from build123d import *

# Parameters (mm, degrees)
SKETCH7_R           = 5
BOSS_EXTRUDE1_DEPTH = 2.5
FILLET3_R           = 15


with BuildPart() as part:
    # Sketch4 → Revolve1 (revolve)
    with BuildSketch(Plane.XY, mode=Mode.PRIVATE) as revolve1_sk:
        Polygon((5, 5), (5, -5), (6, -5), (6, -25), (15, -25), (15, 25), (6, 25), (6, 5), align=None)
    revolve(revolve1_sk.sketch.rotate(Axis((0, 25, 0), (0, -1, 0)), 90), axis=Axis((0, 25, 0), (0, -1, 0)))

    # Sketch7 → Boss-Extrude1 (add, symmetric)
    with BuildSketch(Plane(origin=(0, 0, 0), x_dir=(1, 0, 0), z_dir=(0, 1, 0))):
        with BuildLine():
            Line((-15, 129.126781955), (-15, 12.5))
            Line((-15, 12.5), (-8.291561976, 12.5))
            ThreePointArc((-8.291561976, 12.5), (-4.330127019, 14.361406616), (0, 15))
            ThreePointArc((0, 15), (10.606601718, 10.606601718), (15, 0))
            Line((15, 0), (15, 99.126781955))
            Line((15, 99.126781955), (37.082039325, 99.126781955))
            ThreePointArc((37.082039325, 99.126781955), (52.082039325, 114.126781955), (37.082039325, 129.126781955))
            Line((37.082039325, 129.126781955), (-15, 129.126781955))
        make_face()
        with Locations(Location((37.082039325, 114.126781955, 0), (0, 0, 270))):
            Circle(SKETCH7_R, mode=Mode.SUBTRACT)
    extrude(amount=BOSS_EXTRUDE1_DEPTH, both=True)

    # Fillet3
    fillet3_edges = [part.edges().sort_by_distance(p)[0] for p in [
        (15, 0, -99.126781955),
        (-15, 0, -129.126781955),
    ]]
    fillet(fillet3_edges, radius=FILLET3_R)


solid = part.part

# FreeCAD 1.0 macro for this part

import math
import FreeCAD as App
import Part
import Sketcher


def edges_at(feature, points):
    """Names of the edges that pass closest to the given points."""
    edges = feature.Shape.Edges
    near = lambda p: min(range(len(edges)), key=lambda i: edges[i].distToShape(Part.Vertex(*p))[0])
    return sorted({f"Edge{near(p) + 1}" for p in points})


def add_polygon(sketch, points):
    """Adds a closed chain of lines whose ends are joined by coincident constraints."""
    first, n = sketch.GeometryCount, len(points)
    for a, b in zip(points, points[1:] + points[:1]):
        sketch.addGeometry(Part.LineSegment(App.Vector(*a, 0), App.Vector(*b, 0)), False)
    for i in range(n):
        sketch.addConstraint(Sketcher.Constraint("Coincident", first + i, 2, first + (i + 1) % n, 1))

doc = App.newDocument("Part")
body = doc.addObject("PartDesign::Body", "Body")

# Sketch on XY plane
sketch1 = body.newObject("Sketcher::SketchObject", "Sketch")
sketch1.AttachmentSupport = (doc.getObject("XY_Plane"), [""])
sketch1.MapMode = "FlatFace"
add_polygon(sketch1, [(5, 5), (5, -5), (6, -5), (6, -25), (15, -25), (15, 25), (6, 25), (6, 5)])  # lines 0-7
sketch1.addConstraint(Sketcher.Constraint("Vertical", 0))
sketch1.addConstraint(Sketcher.Constraint("Horizontal", 1))
sketch1.addConstraint(Sketcher.Constraint("Vertical", 2))
sketch1.addConstraint(Sketcher.Constraint("Horizontal", 3))
sketch1.addConstraint(Sketcher.Constraint("Vertical", 4))
sketch1.addConstraint(Sketcher.Constraint("Horizontal", 5))
sketch1.addConstraint(Sketcher.Constraint("Vertical", 6))
sketch1.addConstraint(Sketcher.Constraint("Horizontal", 7))
sketch1.addConstraint(Sketcher.Constraint("Symmetric", 2, 2, 5, 2, -1))
sketch1.addConstraint(Sketcher.Constraint("Equal", 2, 6))
sketch1.addConstraint(Sketcher.Constraint("DistanceX", 1, 1, 1, 2, 1.0))
sketch1.addConstraint(Sketcher.Constraint("DistanceX", 3, 1, 3, 2, 9.0))
sketch1.addConstraint(Sketcher.Constraint("DistanceY", 0, 2, 0, 1, 10.0))
sketch1.addConstraint(Sketcher.Constraint("DistanceY", 2, 2, 2, 1, 20.0))
sketch1.addConstraint(Sketcher.Constraint("DistanceX", -1, 1, 0, 2, 5.0))
revolution = body.newObject("PartDesign::Revolution", "Revolution")
revolution.Profile = sketch1
revolution.ReferenceAxis = (sketch1, ["V_Axis"])
revolution.Angle = 360

# Sketch on XZ plane
sketch2 = body.newObject("Sketcher::SketchObject", "Sketch001")
sketch2.AttachmentSupport = (doc.getObject("XZ_Plane"), [""])
sketch2.MapMode = "FlatFace"
sketch2.addGeometry(Part.LineSegment(App.Vector(-15, -129, 0), App.Vector(-15, -12, 0)), False)
sketch2.addGeometry(Part.LineSegment(App.Vector(-15, -12, 0), App.Vector(-8, -12, 0)), False)
sketch2.addGeometry(Part.ArcOfCircle(Part.Circle(App.Vector(0, 0, 0), App.Vector(0, 0, 1), 15), math.radians(-124), math.radians(-90)), False)
sketch2.addGeometry(Part.ArcOfCircle(Part.Circle(App.Vector(0, 0, 0), App.Vector(0, 0, 1), 15), math.radians(-90), math.radians(0)), False)
sketch2.addGeometry(Part.LineSegment(App.Vector(15, 0, 0), App.Vector(15, -99, 0)), False)
sketch2.addGeometry(Part.LineSegment(App.Vector(15, -99, 0), App.Vector(37, -99, 0)), False)
sketch2.addGeometry(Part.ArcOfCircle(Part.Circle(App.Vector(37, -114, 0), App.Vector(0, 0, 1), 15), math.radians(-90), math.radians(90)), False)
sketch2.addGeometry(Part.LineSegment(App.Vector(37, -129, 0), App.Vector(-15, -129, 0)), False)
sketch2.addGeometry(Part.Circle(App.Vector(37, -114, 0), App.Vector(0, 0, 1), 5), False)
sketch2.addConstraint(Sketcher.Constraint("Coincident", 0, 2, 1, 1))
sketch2.addConstraint(Sketcher.Constraint("Coincident", 1, 2, 2, 1))
sketch2.addConstraint(Sketcher.Constraint("Tangent", 2, 2, 3, 1))
sketch2.addConstraint(Sketcher.Constraint("Tangent", 3, 2, 4, 1))
sketch2.addConstraint(Sketcher.Constraint("Coincident", 4, 2, 5, 1))
sketch2.addConstraint(Sketcher.Constraint("Tangent", 5, 2, 6, 2))
sketch2.addConstraint(Sketcher.Constraint("Tangent", 6, 1, 7, 1))
sketch2.addConstraint(Sketcher.Constraint("Coincident", 7, 2, 0, 1))
sketch2.addConstraint(Sketcher.Constraint("Vertical", 0))
sketch2.addConstraint(Sketcher.Constraint("Horizontal", 1))
sketch2.addConstraint(Sketcher.Constraint("Vertical", 4))
sketch2.addConstraint(Sketcher.Constraint("Horizontal", 5))
sketch2.addConstraint(Sketcher.Constraint("Horizontal", 7))
sketch2.addConstraint(Sketcher.Constraint("Coincident", 2, 3, -1, 1))
sketch2.addConstraint(Sketcher.Constraint("Coincident", 8, 3, 6, 3))
sketch2.addConstraint(Sketcher.Constraint("Equal", 2, 3))
sketch2.addConstraint(Sketcher.Constraint("Equal", 3, 6))
sketch2.addConstraint(Sketcher.Constraint("PointOnObject", 2, 2, -2))
sketch2.addConstraint(Sketcher.Constraint("Diameter", 8, 10.0))
sketch2.addConstraint(Sketcher.Constraint("Radius", 2, 15.0))
sketch2.addConstraint(Sketcher.Constraint("DistanceX", 0, 2, -1, 1, 15.0))
sketch2.addConstraint(Sketcher.Constraint("DistanceY", 0, 2, -1, 1, 12.5))
sketch2.addConstraint(Sketcher.Constraint("DistanceX", 5, 1, 5, 2, 22.082039))
sketch2.addConstraint(Sketcher.Constraint("DistanceY", 0, 1, 0, 2, 116.626782))
pad1 = body.newObject("PartDesign::Pad", "Pad")
pad1.Profile = sketch2
pad1.Length = 5
pad1.Midplane = True
doc.recompute()

fillet = body.newObject("PartDesign::Fillet", "Fillet")
fillet.Base = (pad1, edges_at(pad1, [(15, 0, -99.127), (-15, 0, -129.127)]))
fillet.Radius = 15

doc.recompute()
